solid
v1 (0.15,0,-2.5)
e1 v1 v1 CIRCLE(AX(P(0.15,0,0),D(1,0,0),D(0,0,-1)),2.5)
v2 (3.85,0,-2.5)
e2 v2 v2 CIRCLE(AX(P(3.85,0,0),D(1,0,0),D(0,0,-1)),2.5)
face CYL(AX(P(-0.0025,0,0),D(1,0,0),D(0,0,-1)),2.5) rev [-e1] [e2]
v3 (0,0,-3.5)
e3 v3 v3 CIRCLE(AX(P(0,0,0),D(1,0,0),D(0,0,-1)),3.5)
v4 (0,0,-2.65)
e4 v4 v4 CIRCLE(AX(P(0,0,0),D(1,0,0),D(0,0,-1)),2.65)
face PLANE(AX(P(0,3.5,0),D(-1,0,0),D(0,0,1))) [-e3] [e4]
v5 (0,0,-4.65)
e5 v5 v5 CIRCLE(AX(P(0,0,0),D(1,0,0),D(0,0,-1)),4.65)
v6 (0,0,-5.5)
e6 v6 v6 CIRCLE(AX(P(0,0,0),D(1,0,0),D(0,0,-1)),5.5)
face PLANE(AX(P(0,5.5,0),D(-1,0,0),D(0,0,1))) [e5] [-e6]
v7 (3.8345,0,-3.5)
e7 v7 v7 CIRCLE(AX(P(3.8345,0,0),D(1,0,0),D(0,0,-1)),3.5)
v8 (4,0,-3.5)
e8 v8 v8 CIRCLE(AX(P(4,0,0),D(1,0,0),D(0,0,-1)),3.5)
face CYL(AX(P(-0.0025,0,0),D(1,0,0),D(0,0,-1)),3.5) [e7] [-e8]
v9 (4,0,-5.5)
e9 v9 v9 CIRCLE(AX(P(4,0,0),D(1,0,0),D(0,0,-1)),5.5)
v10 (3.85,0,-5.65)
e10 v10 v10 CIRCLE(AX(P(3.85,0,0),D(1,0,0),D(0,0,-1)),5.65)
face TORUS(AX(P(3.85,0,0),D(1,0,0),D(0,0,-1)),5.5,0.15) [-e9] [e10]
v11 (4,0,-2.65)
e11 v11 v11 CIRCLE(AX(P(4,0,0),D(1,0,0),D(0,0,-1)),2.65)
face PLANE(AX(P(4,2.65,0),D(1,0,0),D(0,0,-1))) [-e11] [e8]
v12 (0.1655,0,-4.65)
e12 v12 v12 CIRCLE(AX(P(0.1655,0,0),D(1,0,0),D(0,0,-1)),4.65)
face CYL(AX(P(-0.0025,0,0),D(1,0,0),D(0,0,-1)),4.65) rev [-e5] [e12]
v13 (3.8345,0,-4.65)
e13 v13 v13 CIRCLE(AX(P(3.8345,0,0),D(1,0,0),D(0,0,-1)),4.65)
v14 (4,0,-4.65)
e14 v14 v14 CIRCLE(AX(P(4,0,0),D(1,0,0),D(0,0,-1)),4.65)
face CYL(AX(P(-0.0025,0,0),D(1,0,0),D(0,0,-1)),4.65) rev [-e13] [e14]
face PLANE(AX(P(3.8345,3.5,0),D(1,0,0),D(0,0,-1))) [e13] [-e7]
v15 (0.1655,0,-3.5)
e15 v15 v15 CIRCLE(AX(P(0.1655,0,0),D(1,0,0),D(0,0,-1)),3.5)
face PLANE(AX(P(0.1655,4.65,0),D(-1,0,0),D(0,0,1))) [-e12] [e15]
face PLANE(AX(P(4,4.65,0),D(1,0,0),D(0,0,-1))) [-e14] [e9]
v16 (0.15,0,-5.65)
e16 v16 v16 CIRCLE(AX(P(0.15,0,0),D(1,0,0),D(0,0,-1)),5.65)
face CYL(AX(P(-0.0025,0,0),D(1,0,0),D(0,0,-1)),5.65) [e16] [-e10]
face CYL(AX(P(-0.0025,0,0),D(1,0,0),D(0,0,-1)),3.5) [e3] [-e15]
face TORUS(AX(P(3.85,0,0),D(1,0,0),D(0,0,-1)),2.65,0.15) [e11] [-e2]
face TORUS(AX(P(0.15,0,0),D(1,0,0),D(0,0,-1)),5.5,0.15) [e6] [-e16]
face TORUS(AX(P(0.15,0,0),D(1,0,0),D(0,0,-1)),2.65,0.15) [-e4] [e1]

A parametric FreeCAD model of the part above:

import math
import FreeCAD as App
import Part
import Sketcher
from FreeCAD import Vector
Q = App.Units.Quantity

doc = App.newDocument("Part")
body = doc.addObject("PartDesign::Body", "Body")

sketch1 = body.newObject("Sketcher::SketchObject", "Sketch")
sketch1.AttachmentSupport = (doc.getObject("XY_Plane"), [""])
sketch1.MapMode = "FlatFace"
sketch1.addGeometry([
    Part.LineSegment(Vector(0, 3.5, 0), Vector(0, 2.65, 0)),
    Part.ArcOfCircle(Part.Circle(Vector(0.15, 2.65, 0), Vector(0, 0, 1), 0.15), math.radians(-180), math.radians(-90)),
    Part.LineSegment(Vector(0.15, 2.5, 0), Vector(3.85, 2.5, 0)),
    Part.ArcOfCircle(Part.Circle(Vector(3.85, 2.65, 0), Vector(0, 0, 1), 0.15), math.radians(-90), math.radians(0)),
    Part.LineSegment(Vector(4, 2.65, 0), Vector(4, 3.5, 0)),
    Part.LineSegment(Vector(4, 3.5, 0), Vector(3.83, 3.5, 0)),
    Part.LineSegment(Vector(3.83, 3.5, 0), Vector(3.83, 4.65, 0)),
    Part.LineSegment(Vector(3.83, 4.65, 0), Vector(4, 4.65, 0)),
    Part.LineSegment(Vector(4, 4.65, 0), Vector(4, 5.5, 0)),
    Part.ArcOfCircle(Part.Circle(Vector(3.85, 5.5, 0), Vector(0, 0, 1), 0.15), math.radians(0), math.radians(90)),
    Part.LineSegment(Vector(3.85, 5.65, 0), Vector(0.15, 5.65, 0)),
    Part.ArcOfCircle(Part.Circle(Vector(0.15, 5.5, 0), Vector(0, 0, 1), 0.15), math.radians(90), math.radians(180)),
    Part.LineSegment(Vector(0, 5.5, 0), Vector(0, 4.65, 0)),
    Part.LineSegment(Vector(0, 4.65, 0), Vector(0.17, 4.65, 0)),
    Part.LineSegment(Vector(0.17, 4.65, 0), Vector(0.17, 3.5, 0)),
    Part.LineSegment(Vector(0.17, 3.5, 0), Vector(0, 3.5, 0)),
], False)
sketch1.addConstraint([
    Sketcher.Constraint("Tangent", 0, 2, 1, 1),
    Sketcher.Constraint("Tangent", 1, 2, 2, 1),
    Sketcher.Constraint("Tangent", 2, 2, 3, 1),
    Sketcher.Constraint("Tangent", 3, 2, 4, 1),
    Sketcher.Constraint("Coincident", 4, 2, 5, 1),
    Sketcher.Constraint("Coincident", 5, 2, 6, 1),
    Sketcher.Constraint("Coincident", 6, 2, 7, 1),
    Sketcher.Constraint("Coincident", 7, 2, 8, 1),
    Sketcher.Constraint("Tangent", 8, 2, 9, 1),
    Sketcher.Constraint("Tangent", 9, 2, 10, 1),
    Sketcher.Constraint("Tangent", 10, 2, 11, 1),
    Sketcher.Constraint("Tangent", 11, 2, 12, 1),
    Sketcher.Constraint("Coincident", 12, 2, 13, 1),
    Sketcher.Constraint("Coincident", 13, 2, 14, 1),
    Sketcher.Constraint("Coincident", 14, 2, 15, 1),
    Sketcher.Constraint("Coincident", 15, 2, 0, 1),
    Sketcher.Constraint("Vertical", 0),
    Sketcher.Constraint("Horizontal", 2),
    Sketcher.Constraint("Vertical", 4),
    Sketcher.Constraint("Horizontal", 5),
    Sketcher.Constraint("Vertical", 6),
    Sketcher.Constraint("Horizontal", 7),
    Sketcher.Constraint("Vertical", 8),
    Sketcher.Constraint("Horizontal", 10),
    Sketcher.Constraint("Vertical", 12),
    Sketcher.Constraint("Horizontal", 13),
    Sketcher.Constraint("Vertical", 14),
    Sketcher.Constraint("Horizontal", 15),
    Sketcher.Constraint("Equal", 1, 3),
    Sketcher.Constraint("Equal", 3, 9),
    Sketcher.Constraint("Equal", 9, 11),
    Sketcher.Constraint("PointOnObject", 0, 2, -2),
    Sketcher.Constraint("PointOnObject", 11, 2, -2),
    Sketcher.Constraint("Horizontal", 7, 2, 12, 2),
    Sketcher.Constraint("Horizontal", 5, 2, 14, 2),
    Sketcher.Constraint("Vertical", 3, 3, 9, 3),
    Sketcher.Constraint("Equal", 7, 13),
    Sketcher.Constraint("Equal", 4, 8),
    Sketcher.Constraint("Radius", 1, Q("0.15 mm")),
    Sketcher.Constraint("DistanceX", 2, 1, 2, 2, Q("3.7 mm")),
    Sketcher.Constraint("DistanceY", 1, 2, 11, 3, Q("3 mm")),
    Sketcher.Constraint("DistanceY", 2, 2, 4, 2, Q("1 mm")),
    Sketcher.Constraint("DistanceY", -1, 1, 9, 3, Q("5.5 mm")),
    Sketcher.Constraint("DistanceX", 5, 2, 5, 1, Q("0.1655 mm")),
])
revolution = body.newObject("PartDesign::Revolution", "Revolution")
revolution.Profile = sketch1
revolution.ReferenceAxis = (sketch1, ["H_Axis"])
revolution.Angle = 360

doc.recompute()
